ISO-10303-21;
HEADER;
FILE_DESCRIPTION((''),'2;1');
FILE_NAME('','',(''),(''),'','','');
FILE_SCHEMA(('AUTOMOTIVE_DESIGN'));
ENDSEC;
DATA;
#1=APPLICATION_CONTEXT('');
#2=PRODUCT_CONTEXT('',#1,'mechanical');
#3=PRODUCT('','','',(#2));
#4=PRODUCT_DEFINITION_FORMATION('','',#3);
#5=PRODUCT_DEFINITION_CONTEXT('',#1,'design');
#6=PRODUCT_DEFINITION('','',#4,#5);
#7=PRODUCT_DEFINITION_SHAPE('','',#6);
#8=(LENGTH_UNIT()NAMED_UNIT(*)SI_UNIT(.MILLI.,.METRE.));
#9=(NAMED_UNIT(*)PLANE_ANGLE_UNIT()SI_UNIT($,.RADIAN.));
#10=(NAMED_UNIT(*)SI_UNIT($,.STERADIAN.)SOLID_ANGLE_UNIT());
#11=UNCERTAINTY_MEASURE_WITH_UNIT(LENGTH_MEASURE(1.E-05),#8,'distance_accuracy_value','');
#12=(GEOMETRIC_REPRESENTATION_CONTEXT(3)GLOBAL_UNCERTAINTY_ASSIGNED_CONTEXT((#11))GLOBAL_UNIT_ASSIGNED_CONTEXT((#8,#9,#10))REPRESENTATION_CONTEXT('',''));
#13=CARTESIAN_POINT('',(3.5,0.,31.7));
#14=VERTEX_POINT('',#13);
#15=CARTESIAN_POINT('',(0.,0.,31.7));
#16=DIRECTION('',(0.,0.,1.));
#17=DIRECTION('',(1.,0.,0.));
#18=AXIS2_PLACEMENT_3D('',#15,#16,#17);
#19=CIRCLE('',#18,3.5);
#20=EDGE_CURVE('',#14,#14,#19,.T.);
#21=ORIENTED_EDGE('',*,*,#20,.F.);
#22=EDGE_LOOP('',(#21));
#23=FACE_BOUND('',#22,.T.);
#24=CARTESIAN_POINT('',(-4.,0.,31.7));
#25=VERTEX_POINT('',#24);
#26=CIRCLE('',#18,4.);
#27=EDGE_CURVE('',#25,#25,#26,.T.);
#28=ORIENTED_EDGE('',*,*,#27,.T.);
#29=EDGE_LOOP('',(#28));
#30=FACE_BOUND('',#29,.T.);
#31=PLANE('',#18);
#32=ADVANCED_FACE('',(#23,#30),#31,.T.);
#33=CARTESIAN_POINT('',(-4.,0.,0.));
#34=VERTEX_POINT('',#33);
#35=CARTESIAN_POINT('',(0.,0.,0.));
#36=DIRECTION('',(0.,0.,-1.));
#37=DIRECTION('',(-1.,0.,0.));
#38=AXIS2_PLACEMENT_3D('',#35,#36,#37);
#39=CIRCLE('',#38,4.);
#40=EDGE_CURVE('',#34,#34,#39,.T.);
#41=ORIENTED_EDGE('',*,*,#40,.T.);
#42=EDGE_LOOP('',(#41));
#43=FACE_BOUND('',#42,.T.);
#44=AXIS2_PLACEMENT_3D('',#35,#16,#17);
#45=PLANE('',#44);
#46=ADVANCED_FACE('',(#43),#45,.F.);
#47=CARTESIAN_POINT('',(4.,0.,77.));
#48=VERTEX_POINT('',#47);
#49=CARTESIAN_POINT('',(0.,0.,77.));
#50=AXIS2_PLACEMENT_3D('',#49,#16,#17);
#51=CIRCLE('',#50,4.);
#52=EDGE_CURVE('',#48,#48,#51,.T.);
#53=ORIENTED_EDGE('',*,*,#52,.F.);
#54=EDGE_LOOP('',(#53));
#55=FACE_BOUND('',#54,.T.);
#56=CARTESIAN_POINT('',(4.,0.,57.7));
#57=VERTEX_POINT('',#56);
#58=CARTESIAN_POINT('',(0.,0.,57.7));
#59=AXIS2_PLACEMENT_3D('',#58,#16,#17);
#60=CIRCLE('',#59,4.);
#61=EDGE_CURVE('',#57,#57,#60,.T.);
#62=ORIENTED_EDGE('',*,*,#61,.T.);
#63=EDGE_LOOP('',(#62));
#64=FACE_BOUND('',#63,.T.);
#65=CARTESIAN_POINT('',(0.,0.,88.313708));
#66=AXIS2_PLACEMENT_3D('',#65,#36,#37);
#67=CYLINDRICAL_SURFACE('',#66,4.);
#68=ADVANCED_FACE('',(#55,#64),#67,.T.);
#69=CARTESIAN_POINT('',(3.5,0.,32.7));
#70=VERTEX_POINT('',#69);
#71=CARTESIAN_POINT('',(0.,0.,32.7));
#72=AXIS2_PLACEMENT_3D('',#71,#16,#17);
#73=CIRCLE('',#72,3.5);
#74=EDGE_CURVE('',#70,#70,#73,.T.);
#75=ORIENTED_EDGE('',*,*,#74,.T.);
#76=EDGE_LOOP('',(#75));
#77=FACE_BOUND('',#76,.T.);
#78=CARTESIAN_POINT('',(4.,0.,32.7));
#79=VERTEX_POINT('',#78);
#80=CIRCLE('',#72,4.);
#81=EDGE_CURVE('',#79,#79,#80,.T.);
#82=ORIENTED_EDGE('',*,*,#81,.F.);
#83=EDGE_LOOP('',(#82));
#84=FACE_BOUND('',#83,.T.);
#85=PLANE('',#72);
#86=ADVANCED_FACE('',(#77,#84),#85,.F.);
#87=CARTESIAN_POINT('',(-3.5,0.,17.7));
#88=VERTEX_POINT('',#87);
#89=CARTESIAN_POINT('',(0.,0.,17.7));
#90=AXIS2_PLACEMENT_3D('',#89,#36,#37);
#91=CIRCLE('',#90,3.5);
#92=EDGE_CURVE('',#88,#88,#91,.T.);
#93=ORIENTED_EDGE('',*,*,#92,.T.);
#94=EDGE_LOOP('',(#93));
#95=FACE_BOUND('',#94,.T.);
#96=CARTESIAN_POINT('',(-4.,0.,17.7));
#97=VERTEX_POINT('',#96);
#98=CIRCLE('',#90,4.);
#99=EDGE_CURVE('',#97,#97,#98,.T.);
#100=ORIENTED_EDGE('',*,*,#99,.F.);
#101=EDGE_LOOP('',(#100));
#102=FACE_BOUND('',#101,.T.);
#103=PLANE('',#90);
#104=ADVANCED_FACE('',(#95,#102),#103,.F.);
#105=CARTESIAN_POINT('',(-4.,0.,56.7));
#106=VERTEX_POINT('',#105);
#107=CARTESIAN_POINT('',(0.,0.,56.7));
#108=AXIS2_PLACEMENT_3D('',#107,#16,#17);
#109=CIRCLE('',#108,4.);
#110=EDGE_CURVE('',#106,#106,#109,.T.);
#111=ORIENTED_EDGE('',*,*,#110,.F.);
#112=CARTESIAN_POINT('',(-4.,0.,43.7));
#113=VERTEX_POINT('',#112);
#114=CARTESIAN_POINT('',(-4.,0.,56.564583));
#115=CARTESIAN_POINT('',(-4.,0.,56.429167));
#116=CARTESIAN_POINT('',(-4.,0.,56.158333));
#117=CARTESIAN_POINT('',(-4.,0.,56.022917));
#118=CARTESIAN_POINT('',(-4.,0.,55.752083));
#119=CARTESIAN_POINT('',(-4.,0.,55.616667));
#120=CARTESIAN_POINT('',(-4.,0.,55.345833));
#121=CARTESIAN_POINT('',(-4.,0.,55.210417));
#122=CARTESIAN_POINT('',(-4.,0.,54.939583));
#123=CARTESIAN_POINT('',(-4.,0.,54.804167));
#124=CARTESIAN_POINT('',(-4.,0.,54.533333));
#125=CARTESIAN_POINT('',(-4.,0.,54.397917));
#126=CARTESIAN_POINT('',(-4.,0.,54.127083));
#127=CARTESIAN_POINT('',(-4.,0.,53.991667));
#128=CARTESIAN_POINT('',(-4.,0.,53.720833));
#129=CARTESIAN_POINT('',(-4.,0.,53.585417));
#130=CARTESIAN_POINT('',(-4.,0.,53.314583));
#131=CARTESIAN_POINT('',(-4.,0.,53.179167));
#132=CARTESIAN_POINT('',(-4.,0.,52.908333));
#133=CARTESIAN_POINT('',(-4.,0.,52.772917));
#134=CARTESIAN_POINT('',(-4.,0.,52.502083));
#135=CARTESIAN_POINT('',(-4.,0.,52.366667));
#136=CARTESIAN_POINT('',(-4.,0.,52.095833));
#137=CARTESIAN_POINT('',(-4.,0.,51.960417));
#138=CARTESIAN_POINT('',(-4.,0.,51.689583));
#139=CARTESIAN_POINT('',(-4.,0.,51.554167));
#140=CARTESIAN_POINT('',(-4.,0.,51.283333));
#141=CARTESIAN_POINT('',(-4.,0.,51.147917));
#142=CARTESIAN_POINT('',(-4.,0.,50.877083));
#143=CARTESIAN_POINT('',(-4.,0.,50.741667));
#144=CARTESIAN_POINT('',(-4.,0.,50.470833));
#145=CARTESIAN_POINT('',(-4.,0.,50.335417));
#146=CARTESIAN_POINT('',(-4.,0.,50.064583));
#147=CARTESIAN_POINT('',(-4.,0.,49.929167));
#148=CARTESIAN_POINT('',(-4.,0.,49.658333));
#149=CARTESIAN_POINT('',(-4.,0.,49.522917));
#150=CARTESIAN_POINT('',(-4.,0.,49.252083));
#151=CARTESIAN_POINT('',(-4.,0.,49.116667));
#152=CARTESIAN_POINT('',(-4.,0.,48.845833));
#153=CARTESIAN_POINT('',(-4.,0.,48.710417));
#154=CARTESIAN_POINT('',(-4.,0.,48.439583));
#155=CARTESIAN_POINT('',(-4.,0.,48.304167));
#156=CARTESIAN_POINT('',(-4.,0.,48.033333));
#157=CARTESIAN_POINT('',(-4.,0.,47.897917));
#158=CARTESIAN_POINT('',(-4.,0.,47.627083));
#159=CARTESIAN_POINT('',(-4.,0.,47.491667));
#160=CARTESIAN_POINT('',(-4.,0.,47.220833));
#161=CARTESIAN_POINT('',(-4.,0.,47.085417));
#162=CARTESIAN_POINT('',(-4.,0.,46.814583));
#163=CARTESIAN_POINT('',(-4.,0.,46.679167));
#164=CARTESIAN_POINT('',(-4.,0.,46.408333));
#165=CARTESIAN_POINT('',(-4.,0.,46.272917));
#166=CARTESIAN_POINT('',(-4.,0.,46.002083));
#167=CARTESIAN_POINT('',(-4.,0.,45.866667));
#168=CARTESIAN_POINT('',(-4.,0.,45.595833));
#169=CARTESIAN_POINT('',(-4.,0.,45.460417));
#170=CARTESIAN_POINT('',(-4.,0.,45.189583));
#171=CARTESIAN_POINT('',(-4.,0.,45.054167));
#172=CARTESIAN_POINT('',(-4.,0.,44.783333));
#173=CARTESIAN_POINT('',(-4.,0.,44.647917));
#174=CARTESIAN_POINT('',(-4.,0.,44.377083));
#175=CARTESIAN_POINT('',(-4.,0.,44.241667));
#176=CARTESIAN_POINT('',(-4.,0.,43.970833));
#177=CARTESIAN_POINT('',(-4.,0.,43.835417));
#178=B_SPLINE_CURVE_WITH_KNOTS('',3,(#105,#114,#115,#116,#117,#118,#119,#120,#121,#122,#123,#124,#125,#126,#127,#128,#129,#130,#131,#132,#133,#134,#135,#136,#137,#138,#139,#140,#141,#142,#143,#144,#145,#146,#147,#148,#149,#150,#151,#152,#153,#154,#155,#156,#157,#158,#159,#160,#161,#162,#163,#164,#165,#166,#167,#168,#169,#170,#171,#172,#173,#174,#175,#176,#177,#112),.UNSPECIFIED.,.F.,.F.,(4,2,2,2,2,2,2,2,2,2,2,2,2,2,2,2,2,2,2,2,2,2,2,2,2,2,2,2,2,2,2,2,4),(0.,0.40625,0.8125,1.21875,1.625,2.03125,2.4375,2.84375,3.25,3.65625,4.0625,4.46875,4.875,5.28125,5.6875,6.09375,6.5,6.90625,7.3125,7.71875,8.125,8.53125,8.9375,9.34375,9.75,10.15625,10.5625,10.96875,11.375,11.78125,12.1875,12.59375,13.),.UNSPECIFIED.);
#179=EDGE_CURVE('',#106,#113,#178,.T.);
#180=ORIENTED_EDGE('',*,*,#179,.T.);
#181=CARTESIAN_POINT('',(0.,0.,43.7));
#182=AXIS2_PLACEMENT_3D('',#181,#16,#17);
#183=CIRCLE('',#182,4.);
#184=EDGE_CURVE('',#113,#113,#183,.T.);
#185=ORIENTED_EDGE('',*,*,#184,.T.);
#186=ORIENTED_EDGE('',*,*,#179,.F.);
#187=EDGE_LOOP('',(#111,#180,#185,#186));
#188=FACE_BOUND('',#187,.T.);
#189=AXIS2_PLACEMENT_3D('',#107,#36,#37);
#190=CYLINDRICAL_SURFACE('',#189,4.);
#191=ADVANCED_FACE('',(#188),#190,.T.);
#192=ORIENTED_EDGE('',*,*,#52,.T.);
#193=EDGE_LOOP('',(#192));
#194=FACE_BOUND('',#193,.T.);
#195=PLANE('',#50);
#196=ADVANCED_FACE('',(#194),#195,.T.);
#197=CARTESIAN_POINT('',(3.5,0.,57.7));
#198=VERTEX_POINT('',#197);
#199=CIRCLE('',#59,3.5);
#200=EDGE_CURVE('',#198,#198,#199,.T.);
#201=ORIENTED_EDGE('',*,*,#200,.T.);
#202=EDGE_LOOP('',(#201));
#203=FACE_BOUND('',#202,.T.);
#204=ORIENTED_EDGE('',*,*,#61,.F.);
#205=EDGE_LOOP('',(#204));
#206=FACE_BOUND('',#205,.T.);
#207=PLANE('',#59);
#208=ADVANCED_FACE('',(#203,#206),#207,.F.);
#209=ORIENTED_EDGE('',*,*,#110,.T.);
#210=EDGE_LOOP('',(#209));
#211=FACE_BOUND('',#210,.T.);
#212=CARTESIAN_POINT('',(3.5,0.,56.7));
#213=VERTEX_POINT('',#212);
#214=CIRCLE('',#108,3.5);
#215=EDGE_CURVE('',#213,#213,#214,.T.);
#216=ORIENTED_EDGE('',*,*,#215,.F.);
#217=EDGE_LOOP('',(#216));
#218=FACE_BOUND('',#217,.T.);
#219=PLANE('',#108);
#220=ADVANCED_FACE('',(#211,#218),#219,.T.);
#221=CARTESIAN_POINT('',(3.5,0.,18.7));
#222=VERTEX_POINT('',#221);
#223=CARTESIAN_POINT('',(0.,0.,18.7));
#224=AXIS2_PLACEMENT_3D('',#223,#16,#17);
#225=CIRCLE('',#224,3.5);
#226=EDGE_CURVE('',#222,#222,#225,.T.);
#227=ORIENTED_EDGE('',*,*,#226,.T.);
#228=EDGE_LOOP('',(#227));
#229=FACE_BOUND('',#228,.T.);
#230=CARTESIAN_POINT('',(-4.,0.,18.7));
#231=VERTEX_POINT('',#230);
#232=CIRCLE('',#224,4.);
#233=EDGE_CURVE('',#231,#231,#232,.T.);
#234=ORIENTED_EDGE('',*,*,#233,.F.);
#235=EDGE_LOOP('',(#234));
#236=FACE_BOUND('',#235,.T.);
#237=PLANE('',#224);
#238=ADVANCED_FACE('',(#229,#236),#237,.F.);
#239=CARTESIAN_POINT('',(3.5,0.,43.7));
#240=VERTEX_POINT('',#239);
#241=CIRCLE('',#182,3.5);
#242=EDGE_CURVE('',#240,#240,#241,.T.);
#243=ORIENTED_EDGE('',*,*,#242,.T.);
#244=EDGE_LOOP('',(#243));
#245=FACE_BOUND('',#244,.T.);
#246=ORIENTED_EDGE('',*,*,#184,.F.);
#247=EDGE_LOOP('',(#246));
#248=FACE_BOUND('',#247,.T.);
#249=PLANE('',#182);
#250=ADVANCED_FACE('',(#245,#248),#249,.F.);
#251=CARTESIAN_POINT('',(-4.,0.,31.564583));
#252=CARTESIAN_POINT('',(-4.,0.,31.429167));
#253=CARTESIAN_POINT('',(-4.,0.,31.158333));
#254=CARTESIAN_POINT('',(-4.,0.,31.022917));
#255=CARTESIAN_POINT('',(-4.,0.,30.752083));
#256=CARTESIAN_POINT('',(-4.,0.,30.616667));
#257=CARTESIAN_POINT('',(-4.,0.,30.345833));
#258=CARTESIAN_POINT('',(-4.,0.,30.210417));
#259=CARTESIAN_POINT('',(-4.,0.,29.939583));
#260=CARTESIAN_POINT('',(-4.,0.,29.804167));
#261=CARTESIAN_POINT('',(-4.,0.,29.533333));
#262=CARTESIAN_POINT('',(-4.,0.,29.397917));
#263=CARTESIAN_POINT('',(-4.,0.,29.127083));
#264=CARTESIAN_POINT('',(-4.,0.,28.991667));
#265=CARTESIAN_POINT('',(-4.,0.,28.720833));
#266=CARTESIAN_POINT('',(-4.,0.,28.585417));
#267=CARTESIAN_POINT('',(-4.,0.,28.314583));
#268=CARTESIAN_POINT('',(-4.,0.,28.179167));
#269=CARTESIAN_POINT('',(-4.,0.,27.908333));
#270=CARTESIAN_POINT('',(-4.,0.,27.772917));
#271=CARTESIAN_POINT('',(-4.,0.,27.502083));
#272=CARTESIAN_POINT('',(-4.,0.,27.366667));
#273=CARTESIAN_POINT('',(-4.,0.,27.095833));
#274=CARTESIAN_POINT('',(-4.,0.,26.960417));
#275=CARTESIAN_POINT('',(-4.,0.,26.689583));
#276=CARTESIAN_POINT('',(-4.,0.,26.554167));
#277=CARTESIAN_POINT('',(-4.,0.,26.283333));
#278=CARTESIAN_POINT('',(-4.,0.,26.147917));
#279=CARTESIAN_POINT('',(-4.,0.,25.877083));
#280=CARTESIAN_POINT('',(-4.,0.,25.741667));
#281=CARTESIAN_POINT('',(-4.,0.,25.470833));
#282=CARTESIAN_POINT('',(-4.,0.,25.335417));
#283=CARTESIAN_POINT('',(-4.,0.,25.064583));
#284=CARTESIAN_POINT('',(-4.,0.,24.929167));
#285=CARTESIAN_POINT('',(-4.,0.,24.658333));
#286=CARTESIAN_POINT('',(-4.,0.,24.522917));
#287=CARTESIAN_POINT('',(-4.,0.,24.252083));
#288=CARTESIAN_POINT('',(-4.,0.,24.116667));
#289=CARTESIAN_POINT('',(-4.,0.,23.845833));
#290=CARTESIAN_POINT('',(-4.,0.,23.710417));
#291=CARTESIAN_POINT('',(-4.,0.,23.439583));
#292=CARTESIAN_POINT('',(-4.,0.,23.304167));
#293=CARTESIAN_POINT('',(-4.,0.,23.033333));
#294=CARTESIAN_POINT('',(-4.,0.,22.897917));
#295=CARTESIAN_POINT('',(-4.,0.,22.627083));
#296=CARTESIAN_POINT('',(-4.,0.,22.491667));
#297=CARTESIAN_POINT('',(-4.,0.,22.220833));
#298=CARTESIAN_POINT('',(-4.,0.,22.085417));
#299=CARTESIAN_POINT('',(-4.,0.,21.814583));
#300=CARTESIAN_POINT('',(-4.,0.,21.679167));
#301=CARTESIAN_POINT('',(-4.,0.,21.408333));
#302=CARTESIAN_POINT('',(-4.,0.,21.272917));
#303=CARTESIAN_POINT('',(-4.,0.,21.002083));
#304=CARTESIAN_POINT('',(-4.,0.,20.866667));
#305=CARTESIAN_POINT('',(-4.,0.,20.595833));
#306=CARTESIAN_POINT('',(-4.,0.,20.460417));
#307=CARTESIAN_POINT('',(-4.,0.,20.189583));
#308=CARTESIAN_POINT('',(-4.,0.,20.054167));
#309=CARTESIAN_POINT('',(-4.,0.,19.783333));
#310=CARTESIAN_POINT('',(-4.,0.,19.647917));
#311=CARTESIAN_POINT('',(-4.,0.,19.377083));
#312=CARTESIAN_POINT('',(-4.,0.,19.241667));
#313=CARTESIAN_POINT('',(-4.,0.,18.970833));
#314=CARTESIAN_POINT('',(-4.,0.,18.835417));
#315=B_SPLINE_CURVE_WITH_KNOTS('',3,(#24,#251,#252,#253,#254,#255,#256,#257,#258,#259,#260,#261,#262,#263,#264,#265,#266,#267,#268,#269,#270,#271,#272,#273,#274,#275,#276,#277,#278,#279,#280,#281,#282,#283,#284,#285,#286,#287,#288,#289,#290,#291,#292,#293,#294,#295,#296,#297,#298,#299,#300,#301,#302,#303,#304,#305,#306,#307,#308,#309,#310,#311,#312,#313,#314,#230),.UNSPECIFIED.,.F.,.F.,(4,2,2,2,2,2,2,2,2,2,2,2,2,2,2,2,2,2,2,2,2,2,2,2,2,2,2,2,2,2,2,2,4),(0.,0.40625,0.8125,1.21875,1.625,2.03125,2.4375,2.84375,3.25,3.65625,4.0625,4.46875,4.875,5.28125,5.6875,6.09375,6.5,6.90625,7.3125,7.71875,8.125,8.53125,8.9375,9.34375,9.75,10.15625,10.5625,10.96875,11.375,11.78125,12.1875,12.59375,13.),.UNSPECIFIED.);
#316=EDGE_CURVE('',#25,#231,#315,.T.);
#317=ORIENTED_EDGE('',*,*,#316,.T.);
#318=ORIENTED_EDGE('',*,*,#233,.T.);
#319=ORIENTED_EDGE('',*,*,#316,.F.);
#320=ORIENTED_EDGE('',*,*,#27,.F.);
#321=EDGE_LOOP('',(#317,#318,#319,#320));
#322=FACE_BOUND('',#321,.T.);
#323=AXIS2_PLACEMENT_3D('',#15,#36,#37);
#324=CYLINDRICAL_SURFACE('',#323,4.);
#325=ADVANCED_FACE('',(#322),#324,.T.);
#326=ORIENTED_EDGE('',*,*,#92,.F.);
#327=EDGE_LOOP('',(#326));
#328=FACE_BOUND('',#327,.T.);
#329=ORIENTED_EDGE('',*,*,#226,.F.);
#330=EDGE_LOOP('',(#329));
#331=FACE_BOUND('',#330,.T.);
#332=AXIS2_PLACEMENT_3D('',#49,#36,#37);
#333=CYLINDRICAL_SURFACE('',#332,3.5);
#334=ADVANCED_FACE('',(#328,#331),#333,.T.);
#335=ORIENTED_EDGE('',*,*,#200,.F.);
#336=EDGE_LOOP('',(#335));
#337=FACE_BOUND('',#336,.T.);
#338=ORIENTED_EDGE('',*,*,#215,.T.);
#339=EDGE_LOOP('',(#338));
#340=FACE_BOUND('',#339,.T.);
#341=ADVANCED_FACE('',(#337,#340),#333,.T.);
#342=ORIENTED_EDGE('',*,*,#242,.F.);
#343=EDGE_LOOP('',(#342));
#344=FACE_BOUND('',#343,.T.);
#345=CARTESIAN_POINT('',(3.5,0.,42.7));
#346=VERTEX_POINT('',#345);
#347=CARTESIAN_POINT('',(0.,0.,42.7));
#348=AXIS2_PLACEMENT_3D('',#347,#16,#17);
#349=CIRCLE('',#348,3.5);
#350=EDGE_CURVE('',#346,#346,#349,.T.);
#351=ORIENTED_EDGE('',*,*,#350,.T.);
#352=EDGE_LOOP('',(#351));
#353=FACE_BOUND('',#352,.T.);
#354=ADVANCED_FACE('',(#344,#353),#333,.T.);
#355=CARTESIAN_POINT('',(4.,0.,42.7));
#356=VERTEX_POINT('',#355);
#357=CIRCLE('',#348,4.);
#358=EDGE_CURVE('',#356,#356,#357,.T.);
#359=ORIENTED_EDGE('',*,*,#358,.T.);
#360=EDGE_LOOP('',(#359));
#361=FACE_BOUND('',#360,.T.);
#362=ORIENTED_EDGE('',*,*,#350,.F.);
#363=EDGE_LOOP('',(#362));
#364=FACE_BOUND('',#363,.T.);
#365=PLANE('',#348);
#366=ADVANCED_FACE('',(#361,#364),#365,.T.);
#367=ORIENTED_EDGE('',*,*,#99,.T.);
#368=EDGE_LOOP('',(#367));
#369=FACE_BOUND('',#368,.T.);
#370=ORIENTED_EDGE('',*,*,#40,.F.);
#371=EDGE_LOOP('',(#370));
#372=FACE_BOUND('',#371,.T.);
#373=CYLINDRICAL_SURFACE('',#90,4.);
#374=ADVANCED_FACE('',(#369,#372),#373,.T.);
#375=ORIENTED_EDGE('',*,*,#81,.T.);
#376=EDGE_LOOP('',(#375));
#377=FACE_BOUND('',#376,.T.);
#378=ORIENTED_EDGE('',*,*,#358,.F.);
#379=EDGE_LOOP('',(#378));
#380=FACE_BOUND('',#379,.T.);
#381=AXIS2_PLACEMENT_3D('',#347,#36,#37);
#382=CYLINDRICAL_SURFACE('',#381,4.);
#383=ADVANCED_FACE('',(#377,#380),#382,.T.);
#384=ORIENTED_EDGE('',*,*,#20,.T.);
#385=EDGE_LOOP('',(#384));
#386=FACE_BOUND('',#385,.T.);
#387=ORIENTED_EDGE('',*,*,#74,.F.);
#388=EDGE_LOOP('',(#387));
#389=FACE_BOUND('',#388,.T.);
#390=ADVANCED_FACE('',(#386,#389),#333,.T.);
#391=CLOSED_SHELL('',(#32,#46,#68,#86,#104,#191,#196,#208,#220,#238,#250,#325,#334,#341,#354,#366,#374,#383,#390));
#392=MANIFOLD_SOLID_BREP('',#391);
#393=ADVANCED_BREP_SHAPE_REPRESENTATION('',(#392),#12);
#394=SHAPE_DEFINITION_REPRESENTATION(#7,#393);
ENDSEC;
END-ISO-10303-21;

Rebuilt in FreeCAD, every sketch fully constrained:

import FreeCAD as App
import Part
import Sketcher

doc = App.newDocument("Part")
params = doc.addObject("Spreadsheet::Sheet", "Params")
for row, (alias, value) in enumerate([
    ("sketch1_diameter", "7 mm"),
    ("pad1_length", "77 mm"),
    ("sketch2_diameter", "8 mm"),
    ("sketch2_diameter2", "7 mm"),
    ("pad2_length", "17.7 mm"),
    ("sketch3_diameter", "8 mm"),
    ("sketch3_diameter2", "6 mm"),
    ("pad3_length", "13 mm"),
    ("sketch4_diameter", "8 mm"),
    ("sketch4_diameter2", "6 mm"),
    ("pad4_length", "10 mm"),
    ("sketch5_diameter", "8 mm"),
    ("sketch5_diameter2", "6 mm"),
    ("pad5_length", "13 mm"),
    ("sketch6_diameter", "8 mm"),
    ("sketch6_diameter2", "6 mm"),
    ("pad6_length", "19.3 mm"),
], start=1):
    params.set(f"A{row}", alias)
    params.set(f"B{row}", "=" + value)
    params.setAlias(f"B{row}", alias)

body = doc.addObject("PartDesign::Body", "Body")

sketch1 = body.newObject("Sketcher::SketchObject", "Sketch")
sketch1.AttachmentSupport = (doc.getObject("XY_Plane"), [""])
sketch1.MapMode = "FlatFace"
sketch1.addGeometry(Part.Circle(App.Vector(0, 0, 0), App.Vector(0, 0, 1), 3.5), False)
sketch1.addConstraint([
    Sketcher.Constraint("Coincident", 0, 3, -1, 1),
    Sketcher.Constraint("Diameter", 0, 7.0),
])
sketch1.setExpression("Constraints[1]", "Params.sketch1_diameter")
pad1 = body.newObject("PartDesign::Pad", "Pad")
pad1.Profile = sketch1
pad1.setExpression("Length", "Params.pad1_length")

sketch2 = body.newObject("Sketcher::SketchObject", "Sketch001")
sketch2.AttachmentSupport = (doc.getObject("XY_Plane"), [""])
sketch2.MapMode = "FlatFace"
sketch2.addGeometry([
    Part.Circle(App.Vector(0, 0, 0), App.Vector(0, 0, 1), 4),
    Part.Circle(App.Vector(0, 0, 0), App.Vector(0, 0, 1), 3.5),
], False)
sketch2.addConstraint([
    Sketcher.Constraint("Coincident", 0, 3, -1, 1),
    Sketcher.Constraint("Coincident", 1, 3, -1, 1),
    Sketcher.Constraint("Diameter", 0, 8.0),
    Sketcher.Constraint("Diameter", 1, 7.0),
])
sketch2.setExpression("Constraints[2]", "Params.sketch2_diameter")
sketch2.setExpression("Constraints[3]", "Params.sketch2_diameter2")
pad2 = body.newObject("PartDesign::Pad", "Pad001")
pad2.Profile = sketch2
pad2.setExpression("Length", "Params.pad2_length")

sketch3 = body.newObject("Sketcher::SketchObject", "Sketch002")
sketch3.AttachmentSupport = (doc.getObject("XY_Plane"), [""])
sketch3.MapMode = "FlatFace"
sketch3.AttachmentOffset = App.Placement(App.Vector(0, 0, 18.7), App.Rotation())
sketch3.addGeometry([
    Part.Circle(App.Vector(0, 0, 0), App.Vector(0, 0, 1), 4),
    Part.Circle(App.Vector(0, 0, 0), App.Vector(0, 0, 1), 3),
], False)
sketch3.addConstraint([
    Sketcher.Constraint("Coincident", 0, 3, -1, 1),
    Sketcher.Constraint("Coincident", 1, 3, -1, 1),
    Sketcher.Constraint("Diameter", 0, 8.0),
    Sketcher.Constraint("Diameter", 1, 6.0),
])
sketch3.setExpression("Constraints[2]", "Params.sketch3_diameter")
sketch3.setExpression("Constraints[3]", "Params.sketch3_diameter2")
pad3 = body.newObject("PartDesign::Pad", "Pad002")
pad3.Profile = sketch3
pad3.setExpression("Length", "Params.pad3_length")

sketch4 = body.newObject("Sketcher::SketchObject", "Sketch003")
sketch4.AttachmentSupport = (doc.getObject("XY_Plane"), [""])
sketch4.MapMode = "FlatFace"
sketch4.AttachmentOffset = App.Placement(App.Vector(0, 0, 32.7), App.Rotation())
sketch4.addGeometry([
    Part.Circle(App.Vector(0, 0, 0), App.Vector(0, 0, 1), 4),
    Part.Circle(App.Vector(0, 0, 0), App.Vector(0, 0, 1), 3),
], False)
sketch4.addConstraint([
    Sketcher.Constraint("Coincident", 0, 3, -1, 1),
    Sketcher.Constraint("Coincident", 1, 3, -1, 1),
    Sketcher.Constraint("Diameter", 0, 8.0),
    Sketcher.Constraint("Diameter", 1, 6.0),
])
sketch4.setExpression("Constraints[2]", "Params.sketch4_diameter")
sketch4.setExpression("Constraints[3]", "Params.sketch4_diameter2")
pad4 = body.newObject("PartDesign::Pad", "Pad003")
pad4.Profile = sketch4
pad4.setExpression("Length", "Params.pad4_length")

sketch5 = body.newObject("Sketcher::SketchObject", "Sketch004")
sketch5.AttachmentSupport = (doc.getObject("XY_Plane"), [""])
sketch5.MapMode = "FlatFace"
sketch5.AttachmentOffset = App.Placement(App.Vector(0, 0, 43.7), App.Rotation())
sketch5.addGeometry([
    Part.Circle(App.Vector(0, 0, 0), App.Vector(0, 0, 1), 4),
    Part.Circle(App.Vector(0, 0, 0), App.Vector(0, 0, 1), 3),
], False)
sketch5.addConstraint([
    Sketcher.Constraint("Coincident", 0, 3, -1, 1),
    Sketcher.Constraint("Coincident", 1, 3, -1, 1),
    Sketcher.Constraint("Diameter", 0, 8.0),
    Sketcher.Constraint("Diameter", 1, 6.0),
])
sketch5.setExpression("Constraints[2]", "Params.sketch5_diameter")
sketch5.setExpression("Constraints[3]", "Params.sketch5_diameter2")
pad5 = body.newObject("PartDesign::Pad", "Pad004")
pad5.Profile = sketch5
pad5.setExpression("Length", "Params.pad5_length")

sketch6 = body.newObject("Sketcher::SketchObject", "Sketch005")
sketch6.AttachmentSupport = (doc.getObject("XY_Plane"), [""])
sketch6.MapMode = "FlatFace"
sketch6.AttachmentOffset = App.Placement(App.Vector(0, 0, 57.7), App.Rotation())
sketch6.addGeometry([
    Part.Circle(App.Vector(0, 0, 0), App.Vector(0, 0, 1), 4),
    Part.Circle(App.Vector(0, 0, 0), App.Vector(0, 0, 1), 3),
], False)
sketch6.addConstraint([
    Sketcher.Constraint("Coincident", 0, 3, -1, 1),
    Sketcher.Constraint("Coincident", 1, 3, -1, 1),
    Sketcher.Constraint("Diameter", 0, 8.0),
    Sketcher.Constraint("Diameter", 1, 6.0),
])
sketch6.setExpression("Constraints[2]", "Params.sketch6_diameter")
sketch6.setExpression("Constraints[3]", "Params.sketch6_diameter2")
pad6 = body.newObject("PartDesign::Pad", "Pad005")
pad6.Profile = sketch6
pad6.setExpression("Length", "Params.pad6_length")

doc.recompute()
